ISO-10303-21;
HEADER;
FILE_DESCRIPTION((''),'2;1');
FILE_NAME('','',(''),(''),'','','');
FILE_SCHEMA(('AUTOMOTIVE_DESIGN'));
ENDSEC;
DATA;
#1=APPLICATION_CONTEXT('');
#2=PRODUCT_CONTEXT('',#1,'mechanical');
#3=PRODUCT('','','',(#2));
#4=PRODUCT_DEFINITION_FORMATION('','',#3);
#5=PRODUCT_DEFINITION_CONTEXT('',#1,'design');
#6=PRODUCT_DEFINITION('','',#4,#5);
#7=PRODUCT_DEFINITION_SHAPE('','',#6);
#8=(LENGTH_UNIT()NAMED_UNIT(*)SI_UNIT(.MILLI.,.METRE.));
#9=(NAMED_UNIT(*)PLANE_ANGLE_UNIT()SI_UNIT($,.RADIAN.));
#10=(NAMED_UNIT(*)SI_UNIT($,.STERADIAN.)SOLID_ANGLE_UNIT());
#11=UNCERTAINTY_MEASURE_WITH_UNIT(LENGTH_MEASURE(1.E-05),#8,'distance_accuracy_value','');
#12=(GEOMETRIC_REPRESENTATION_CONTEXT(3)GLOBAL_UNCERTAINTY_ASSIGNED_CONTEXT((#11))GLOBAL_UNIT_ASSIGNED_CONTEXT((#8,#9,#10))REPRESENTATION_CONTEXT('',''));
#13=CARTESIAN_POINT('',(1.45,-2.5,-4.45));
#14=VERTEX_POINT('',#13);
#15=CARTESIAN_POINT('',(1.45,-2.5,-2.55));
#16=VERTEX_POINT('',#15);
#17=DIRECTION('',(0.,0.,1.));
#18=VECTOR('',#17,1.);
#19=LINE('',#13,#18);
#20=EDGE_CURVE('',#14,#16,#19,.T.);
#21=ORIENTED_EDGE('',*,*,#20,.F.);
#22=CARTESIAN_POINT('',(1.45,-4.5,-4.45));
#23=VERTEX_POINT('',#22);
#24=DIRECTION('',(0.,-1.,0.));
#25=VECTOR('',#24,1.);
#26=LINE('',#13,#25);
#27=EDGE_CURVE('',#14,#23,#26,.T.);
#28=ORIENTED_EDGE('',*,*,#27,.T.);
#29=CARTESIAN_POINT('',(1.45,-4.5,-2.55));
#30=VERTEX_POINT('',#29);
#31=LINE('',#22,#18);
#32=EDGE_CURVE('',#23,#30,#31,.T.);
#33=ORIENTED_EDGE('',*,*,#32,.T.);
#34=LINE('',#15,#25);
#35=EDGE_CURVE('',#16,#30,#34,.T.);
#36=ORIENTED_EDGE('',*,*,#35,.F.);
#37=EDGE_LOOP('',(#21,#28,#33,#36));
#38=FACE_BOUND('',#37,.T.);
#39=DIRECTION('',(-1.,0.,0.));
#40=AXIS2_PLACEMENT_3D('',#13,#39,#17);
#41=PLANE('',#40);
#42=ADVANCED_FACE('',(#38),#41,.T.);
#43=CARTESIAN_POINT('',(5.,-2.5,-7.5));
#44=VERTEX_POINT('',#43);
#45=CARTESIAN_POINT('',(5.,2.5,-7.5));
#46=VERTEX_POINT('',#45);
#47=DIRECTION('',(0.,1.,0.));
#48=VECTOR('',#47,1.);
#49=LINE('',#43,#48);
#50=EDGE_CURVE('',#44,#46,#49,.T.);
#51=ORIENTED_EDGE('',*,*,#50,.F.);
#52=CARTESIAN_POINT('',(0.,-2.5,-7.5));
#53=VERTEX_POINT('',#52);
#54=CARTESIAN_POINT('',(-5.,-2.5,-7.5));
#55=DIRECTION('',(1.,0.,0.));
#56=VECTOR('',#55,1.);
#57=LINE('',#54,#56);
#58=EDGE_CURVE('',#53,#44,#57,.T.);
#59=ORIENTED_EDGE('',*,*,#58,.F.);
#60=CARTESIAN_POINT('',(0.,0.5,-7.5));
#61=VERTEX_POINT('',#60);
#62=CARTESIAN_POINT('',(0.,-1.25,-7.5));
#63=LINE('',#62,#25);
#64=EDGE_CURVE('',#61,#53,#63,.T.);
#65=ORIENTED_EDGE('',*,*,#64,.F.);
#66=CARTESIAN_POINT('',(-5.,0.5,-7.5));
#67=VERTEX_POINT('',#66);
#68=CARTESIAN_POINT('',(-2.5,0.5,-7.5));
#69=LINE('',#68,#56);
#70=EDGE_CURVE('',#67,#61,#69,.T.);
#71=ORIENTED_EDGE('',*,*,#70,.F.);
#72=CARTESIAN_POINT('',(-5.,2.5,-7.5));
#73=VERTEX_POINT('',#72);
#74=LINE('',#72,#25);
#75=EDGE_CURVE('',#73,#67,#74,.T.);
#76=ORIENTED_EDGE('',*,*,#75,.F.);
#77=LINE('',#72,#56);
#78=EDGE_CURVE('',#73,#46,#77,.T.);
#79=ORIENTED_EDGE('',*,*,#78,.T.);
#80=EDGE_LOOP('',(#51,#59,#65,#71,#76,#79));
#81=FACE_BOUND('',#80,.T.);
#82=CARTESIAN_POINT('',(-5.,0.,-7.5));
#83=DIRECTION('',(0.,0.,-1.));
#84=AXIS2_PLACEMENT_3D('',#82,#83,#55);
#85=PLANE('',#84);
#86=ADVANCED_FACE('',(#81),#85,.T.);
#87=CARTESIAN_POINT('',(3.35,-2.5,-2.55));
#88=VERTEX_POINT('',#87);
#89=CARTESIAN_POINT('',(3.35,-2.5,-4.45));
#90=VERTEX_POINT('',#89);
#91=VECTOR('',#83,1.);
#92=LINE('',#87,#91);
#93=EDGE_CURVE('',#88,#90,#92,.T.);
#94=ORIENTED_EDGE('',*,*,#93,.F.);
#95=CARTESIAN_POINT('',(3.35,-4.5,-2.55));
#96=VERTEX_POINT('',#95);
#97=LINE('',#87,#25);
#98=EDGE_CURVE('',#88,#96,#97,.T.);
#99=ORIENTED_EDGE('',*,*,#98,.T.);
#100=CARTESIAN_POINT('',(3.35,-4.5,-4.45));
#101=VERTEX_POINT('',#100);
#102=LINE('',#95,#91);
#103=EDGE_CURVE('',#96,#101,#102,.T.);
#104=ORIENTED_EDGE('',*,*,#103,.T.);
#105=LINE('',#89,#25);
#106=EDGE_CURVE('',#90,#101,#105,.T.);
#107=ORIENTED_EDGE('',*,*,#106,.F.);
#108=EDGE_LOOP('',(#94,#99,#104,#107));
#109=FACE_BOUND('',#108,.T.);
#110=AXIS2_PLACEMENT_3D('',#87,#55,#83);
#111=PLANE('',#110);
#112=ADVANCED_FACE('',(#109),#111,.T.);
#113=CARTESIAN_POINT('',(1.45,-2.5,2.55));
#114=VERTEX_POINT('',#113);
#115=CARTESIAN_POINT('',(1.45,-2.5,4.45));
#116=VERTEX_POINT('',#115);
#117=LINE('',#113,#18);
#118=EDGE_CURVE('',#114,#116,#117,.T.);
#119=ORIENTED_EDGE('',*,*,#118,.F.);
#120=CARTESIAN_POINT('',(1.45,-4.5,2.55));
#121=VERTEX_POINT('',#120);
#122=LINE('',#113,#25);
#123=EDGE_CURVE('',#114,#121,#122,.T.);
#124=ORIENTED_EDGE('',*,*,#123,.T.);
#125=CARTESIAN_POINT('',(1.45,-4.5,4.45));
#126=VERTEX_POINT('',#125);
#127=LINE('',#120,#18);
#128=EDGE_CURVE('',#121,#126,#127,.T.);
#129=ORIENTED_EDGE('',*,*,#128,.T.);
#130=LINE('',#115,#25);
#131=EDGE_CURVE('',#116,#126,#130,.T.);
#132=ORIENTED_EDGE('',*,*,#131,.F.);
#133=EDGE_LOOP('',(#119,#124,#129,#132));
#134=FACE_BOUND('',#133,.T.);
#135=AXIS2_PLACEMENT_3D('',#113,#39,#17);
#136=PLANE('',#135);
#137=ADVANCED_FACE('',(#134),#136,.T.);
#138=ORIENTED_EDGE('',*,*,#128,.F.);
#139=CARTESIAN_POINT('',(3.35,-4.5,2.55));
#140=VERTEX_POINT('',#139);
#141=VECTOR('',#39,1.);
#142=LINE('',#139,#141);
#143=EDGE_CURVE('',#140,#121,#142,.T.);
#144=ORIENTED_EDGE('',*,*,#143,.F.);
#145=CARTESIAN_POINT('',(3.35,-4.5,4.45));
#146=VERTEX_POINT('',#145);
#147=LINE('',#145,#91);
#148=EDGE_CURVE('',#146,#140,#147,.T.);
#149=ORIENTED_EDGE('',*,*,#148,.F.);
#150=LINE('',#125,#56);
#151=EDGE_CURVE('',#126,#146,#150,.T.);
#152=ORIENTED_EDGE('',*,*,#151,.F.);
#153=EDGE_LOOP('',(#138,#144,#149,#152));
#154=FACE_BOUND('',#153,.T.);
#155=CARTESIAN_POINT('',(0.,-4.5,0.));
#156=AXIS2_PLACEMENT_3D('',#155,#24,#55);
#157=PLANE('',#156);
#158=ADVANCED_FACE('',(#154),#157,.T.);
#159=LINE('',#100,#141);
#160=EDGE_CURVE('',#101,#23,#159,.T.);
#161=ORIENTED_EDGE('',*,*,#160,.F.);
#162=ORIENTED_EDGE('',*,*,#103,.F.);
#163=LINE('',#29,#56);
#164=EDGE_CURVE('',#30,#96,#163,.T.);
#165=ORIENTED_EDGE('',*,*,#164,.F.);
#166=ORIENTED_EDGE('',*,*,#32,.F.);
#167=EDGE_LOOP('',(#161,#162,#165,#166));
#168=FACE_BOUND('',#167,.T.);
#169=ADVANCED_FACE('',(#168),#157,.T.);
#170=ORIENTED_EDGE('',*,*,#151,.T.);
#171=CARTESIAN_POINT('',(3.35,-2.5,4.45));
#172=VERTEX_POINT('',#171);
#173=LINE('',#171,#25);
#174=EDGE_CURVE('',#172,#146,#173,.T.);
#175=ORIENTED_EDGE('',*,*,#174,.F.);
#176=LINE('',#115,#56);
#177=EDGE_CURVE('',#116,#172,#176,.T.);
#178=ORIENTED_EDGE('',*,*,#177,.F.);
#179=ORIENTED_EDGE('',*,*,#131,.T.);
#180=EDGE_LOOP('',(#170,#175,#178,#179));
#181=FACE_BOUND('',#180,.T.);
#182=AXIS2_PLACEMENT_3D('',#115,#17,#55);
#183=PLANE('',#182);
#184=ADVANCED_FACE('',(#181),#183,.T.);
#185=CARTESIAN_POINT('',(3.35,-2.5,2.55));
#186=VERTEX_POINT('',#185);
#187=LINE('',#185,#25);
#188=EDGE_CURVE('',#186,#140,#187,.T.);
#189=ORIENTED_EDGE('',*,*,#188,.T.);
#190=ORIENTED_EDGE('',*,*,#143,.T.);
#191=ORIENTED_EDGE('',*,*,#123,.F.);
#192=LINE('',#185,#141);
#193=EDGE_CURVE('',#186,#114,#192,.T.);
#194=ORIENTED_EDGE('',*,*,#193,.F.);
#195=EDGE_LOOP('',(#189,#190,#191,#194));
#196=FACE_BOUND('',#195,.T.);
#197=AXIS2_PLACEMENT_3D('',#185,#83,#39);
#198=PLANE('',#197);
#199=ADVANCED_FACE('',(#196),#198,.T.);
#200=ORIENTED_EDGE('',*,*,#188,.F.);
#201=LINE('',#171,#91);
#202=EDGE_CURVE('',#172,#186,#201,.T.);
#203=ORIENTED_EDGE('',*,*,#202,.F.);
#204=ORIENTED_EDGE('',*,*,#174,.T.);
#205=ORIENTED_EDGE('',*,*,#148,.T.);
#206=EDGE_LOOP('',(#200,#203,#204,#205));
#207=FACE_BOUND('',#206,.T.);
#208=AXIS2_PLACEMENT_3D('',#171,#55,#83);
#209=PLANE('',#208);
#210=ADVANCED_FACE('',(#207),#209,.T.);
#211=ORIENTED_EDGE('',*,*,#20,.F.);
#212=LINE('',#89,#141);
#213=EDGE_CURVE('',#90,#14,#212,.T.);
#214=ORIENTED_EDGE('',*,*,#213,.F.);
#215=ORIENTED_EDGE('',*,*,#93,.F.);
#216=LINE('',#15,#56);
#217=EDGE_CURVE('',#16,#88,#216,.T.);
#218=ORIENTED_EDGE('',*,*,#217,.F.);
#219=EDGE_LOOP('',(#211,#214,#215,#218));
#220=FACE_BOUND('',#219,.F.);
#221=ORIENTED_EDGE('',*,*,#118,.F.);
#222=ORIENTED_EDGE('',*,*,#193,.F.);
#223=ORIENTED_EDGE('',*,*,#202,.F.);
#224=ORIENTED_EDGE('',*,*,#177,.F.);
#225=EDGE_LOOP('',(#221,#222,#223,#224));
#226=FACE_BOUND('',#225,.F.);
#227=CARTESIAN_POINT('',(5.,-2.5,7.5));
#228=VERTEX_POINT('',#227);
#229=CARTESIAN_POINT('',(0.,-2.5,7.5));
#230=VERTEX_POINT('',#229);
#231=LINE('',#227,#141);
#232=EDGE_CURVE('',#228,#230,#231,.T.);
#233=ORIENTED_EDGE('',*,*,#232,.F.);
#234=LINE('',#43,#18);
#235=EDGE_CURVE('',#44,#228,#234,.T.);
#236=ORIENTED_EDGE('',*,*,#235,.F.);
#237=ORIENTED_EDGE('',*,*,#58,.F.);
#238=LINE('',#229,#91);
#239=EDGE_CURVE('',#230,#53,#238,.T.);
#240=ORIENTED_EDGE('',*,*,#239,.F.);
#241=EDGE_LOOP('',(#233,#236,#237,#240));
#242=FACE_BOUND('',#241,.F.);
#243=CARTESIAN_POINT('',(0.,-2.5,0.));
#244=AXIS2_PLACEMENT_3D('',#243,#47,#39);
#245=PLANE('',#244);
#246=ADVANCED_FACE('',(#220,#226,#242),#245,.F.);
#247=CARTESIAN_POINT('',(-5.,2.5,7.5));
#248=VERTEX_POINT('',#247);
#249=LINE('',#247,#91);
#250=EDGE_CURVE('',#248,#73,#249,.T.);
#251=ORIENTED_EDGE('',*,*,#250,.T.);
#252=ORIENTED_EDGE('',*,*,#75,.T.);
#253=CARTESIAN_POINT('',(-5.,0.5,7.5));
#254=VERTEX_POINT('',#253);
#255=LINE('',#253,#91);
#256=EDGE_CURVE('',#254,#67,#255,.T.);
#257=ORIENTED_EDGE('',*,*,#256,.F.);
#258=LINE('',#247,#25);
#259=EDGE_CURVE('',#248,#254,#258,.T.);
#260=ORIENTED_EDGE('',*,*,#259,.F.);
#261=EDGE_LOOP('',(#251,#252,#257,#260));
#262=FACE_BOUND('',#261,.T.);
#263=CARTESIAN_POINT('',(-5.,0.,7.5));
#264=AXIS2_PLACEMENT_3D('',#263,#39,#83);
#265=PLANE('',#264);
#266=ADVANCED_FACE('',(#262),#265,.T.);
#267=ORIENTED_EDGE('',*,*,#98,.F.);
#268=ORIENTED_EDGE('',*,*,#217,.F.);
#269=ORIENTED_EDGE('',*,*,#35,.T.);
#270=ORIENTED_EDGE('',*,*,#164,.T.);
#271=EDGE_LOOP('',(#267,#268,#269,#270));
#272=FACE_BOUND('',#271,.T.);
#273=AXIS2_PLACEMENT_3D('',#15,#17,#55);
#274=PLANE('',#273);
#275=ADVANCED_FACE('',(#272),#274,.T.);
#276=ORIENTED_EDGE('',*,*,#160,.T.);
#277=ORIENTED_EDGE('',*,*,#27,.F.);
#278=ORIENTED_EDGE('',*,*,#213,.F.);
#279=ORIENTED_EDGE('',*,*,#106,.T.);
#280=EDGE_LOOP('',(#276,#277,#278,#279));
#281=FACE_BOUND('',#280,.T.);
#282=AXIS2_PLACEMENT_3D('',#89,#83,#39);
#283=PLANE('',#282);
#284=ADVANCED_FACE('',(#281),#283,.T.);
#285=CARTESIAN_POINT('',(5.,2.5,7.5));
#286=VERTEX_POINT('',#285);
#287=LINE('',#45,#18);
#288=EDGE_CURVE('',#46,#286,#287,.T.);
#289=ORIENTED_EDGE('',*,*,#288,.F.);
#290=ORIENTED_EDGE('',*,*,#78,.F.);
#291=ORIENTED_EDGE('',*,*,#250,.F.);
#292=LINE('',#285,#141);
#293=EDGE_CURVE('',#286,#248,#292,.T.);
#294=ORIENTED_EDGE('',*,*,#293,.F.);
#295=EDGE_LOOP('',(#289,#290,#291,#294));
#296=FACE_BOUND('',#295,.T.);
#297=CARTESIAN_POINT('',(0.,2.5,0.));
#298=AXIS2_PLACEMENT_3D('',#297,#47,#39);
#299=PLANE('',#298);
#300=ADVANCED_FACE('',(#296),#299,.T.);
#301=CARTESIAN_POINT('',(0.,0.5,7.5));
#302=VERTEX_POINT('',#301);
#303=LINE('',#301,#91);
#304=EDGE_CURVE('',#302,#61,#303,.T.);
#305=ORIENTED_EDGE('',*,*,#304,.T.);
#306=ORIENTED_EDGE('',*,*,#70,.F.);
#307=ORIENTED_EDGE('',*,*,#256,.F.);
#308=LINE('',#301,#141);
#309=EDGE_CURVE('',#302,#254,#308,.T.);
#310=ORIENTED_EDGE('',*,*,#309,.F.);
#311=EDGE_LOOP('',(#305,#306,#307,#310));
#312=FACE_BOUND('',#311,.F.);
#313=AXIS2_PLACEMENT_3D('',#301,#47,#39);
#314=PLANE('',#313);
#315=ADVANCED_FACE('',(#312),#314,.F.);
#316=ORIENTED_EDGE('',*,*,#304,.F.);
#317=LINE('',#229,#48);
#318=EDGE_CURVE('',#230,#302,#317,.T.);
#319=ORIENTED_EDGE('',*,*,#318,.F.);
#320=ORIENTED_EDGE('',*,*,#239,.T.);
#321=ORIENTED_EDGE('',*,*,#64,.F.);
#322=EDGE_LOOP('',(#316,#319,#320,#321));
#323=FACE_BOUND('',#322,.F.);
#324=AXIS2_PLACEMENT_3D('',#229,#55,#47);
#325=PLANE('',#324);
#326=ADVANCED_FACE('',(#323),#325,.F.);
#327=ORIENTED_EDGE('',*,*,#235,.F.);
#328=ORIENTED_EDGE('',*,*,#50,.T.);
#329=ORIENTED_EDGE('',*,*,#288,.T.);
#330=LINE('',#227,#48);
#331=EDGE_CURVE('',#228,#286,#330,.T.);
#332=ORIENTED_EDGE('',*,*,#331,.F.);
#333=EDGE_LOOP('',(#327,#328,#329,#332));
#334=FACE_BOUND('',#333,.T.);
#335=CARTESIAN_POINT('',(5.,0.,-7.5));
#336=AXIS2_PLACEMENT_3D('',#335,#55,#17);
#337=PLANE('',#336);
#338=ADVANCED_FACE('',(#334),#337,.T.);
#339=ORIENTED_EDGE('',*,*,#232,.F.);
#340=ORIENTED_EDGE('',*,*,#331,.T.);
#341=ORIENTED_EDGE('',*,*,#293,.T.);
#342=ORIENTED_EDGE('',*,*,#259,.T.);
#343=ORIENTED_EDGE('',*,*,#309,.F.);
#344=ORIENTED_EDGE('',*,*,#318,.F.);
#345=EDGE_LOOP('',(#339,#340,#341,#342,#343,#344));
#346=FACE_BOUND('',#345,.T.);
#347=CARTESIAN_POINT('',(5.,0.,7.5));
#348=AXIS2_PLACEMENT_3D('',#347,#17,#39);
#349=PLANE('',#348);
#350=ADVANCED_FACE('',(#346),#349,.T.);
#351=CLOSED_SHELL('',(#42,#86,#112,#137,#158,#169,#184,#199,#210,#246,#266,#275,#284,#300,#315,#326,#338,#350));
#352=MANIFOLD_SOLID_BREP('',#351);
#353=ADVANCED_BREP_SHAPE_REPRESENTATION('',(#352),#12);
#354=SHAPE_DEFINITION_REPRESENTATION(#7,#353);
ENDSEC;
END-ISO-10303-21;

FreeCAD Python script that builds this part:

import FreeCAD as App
import Part
import Sketcher
from FreeCAD import Vector
Q = App.Units.Quantity

doc = App.newDocument("Part")
body = doc.addObject("PartDesign::Body", "Body")

# Sketch on XZ plane
sketch1 = body.newObject("Sketcher::SketchObject", "Sketch")
sketch1.AttachmentSupport = (doc.getObject("XZ_Plane"), [""])
sketch1.MapMode = "FlatFace"
sketch1.addGeometry([
    Part.LineSegment(Vector(-5, 8, 0), Vector(5, 8, 0)),
    Part.LineSegment(Vector(5, 8, 0), Vector(5, -8, 0)),
    Part.LineSegment(Vector(5, -8, 0), Vector(-5, -8, 0)),
    Part.LineSegment(Vector(-5, -8, 0), Vector(-5, 8, 0)),
], False)
sketch1.addConstraint([
    Sketcher.Constraint("Coincident", 0, 2, 1, 1),
    Sketcher.Constraint("Coincident", 1, 2, 2, 1),
    Sketcher.Constraint("Coincident", 2, 2, 3, 1),
    Sketcher.Constraint("Coincident", 3, 2, 0, 1),
    Sketcher.Constraint("Horizontal", 0),
    Sketcher.Constraint("Vertical", 1),
    Sketcher.Constraint("Horizontal", 2),
    Sketcher.Constraint("Vertical", 3),
    Sketcher.Constraint("Symmetric", 0, 2, 2, 2, -1, 1),
    Sketcher.Constraint("DistanceX", 0, 1, 0, 2, Q("10 mm")),
    Sketcher.Constraint("DistanceY", 1, 2, 1, 1, Q("15 mm")),
])
pad1 = body.newObject("PartDesign::Pad", "Pad")
pad1.Profile = sketch1
pad1.Length = 5
pad1.Midplane = True

# Sketch on XY plane
sketch2 = body.newObject("Sketcher::SketchObject", "Sketch001")
sketch2.AttachmentSupport = (doc.getObject("XY_Plane"), [""])
sketch2.MapMode = "FlatFace"
sketch2.AttachmentOffset = App.Placement(Vector(0, 0, 7.5), App.Rotation())
sketch2.addGeometry([
    Part.LineSegment(Vector(0, 0.5, 0), Vector(-5, 0.5, 0)),
    Part.LineSegment(Vector(-5, 0.5, 0), Vector(-5, -2.5, 0)),
    Part.LineSegment(Vector(-5, -2.5, 0), Vector(0, -2.5, 0)),
    Part.LineSegment(Vector(0, -2.5, 0), Vector(0, 0.5, 0)),
], False)
sketch2.addConstraint([
    Sketcher.Constraint("Coincident", 0, 2, 1, 1),
    Sketcher.Constraint("Coincident", 1, 2, 2, 1),
    Sketcher.Constraint("Coincident", 2, 2, 3, 1),
    Sketcher.Constraint("Coincident", 3, 2, 0, 1),
    Sketcher.Constraint("Horizontal", 0),
    Sketcher.Constraint("Vertical", 1),
    Sketcher.Constraint("Horizontal", 2),
    Sketcher.Constraint("Vertical", 3),
    Sketcher.Constraint("PointOnObject", 2, 2, -2),
    Sketcher.Constraint("DistanceX", 0, 2, 0, 1, Q("5 mm")),
    Sketcher.Constraint("DistanceY", 1, 2, 1, 1, Q("3 mm")),
    Sketcher.Constraint("DistanceY", -1, 1, 0, 2, Q("0.5 mm")),
])
pocket1 = body.newObject("PartDesign::Pocket", "Pocket")
pocket1.Profile = sketch2
pocket1.Type = "ThroughAll"

# Sketch on XZ plane
sketch3 = body.newObject("Sketcher::SketchObject", "Sketch002")
sketch3.AttachmentSupport = (doc.getObject("XZ_Plane"), [""])
sketch3.MapMode = "FlatFace"
sketch3.AttachmentOffset = App.Placement(Vector(0, 0, 2.5), App.Rotation())
sketch3.addGeometry([
    Part.LineSegment(Vector(1.4, 2.5, 0), Vector(3.4, 2.5, 0)),  # 0
    Part.LineSegment(Vector(3.4, 2.5, 0), Vector(3.4, 4.5, 0)),  # 1
    Part.LineSegment(Vector(3.4, 4.5, 0), Vector(1.4, 4.5, 0)),  # 2
    Part.LineSegment(Vector(1.4, 4.5, 0), Vector(1.4, 2.5, 0)),  # 3
    Part.LineSegment(Vector(3.4, -2.5, 0), Vector(1.4, -2.5, 0)),  # 4
    Part.LineSegment(Vector(1.4, -2.5, 0), Vector(1.4, -4.5, 0)),  # 5
    Part.LineSegment(Vector(1.4, -4.5, 0), Vector(3.4, -4.5, 0)),  # 6
    Part.LineSegment(Vector(3.4, -4.5, 0), Vector(3.4, -2.5, 0)),  # 7
], False)
sketch3.addConstraint([
    Sketcher.Constraint("Coincident", 0, 2, 1, 1),
    Sketcher.Constraint("Coincident", 1, 2, 2, 1),
    Sketcher.Constraint("Coincident", 2, 2, 3, 1),
    Sketcher.Constraint("Coincident", 3, 2, 0, 1),
    Sketcher.Constraint("Coincident", 4, 2, 5, 1),
    Sketcher.Constraint("Coincident", 5, 2, 6, 1),
    Sketcher.Constraint("Coincident", 6, 2, 7, 1),
    Sketcher.Constraint("Coincident", 7, 2, 4, 1),
    Sketcher.Constraint("Horizontal", 0),
    Sketcher.Constraint("Vertical", 1),
    Sketcher.Constraint("Horizontal", 2),
    Sketcher.Constraint("Vertical", 3),
    Sketcher.Constraint("Horizontal", 4),
    Sketcher.Constraint("Vertical", 5),
    Sketcher.Constraint("Horizontal", 6),
    Sketcher.Constraint("Vertical", 7),
    Sketcher.Constraint("Symmetric", 3, 2, 4, 2, -1),
    Sketcher.Constraint("Symmetric", 1, 2, 6, 2, -1),
    Sketcher.Constraint("Equal", 6, 1),
    Sketcher.Constraint("DistanceY", 4, 2, 2, 2, Q("7 mm")),
    Sketcher.Constraint("DistanceX", 0, 1, 0, 2, Q("1.9 mm")),
    Sketcher.Constraint("DistanceX", -1, 1, 0, 2, Q("3.35 mm")),
])
pad2 = body.newObject("PartDesign::Pad", "Pad001")
pad2.Profile = sketch3
pad2.Length = 2

doc.recompute()
